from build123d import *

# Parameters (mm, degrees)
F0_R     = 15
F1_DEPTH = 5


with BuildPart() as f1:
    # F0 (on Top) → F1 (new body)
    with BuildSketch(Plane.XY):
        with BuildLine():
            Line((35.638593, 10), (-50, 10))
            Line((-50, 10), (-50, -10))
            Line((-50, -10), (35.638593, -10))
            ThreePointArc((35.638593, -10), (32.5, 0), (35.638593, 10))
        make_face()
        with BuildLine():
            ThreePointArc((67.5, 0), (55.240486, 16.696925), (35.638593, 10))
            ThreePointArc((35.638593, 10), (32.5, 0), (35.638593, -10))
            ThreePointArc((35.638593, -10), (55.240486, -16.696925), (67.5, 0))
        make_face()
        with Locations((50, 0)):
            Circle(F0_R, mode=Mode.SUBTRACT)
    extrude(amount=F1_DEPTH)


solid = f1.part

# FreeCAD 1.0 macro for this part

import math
import FreeCAD as App
import Part
import Sketcher

doc = App.newDocument("Part")
body = doc.addObject("PartDesign::Body", "Body")

sketch1 = doc.addObject("Sketcher::SketchObject", "Sketch")
body.addObject(sketch1)
sketch1.AttachmentSupport = (doc.XY_Plane, [""])
sketch1.MapMode = "FlatFace"
sketch1.addGeometry(Part.LineSegment(App.Vector(36, 10, 0), App.Vector(-50, 10, 0)), False)
sketch1.addGeometry(Part.LineSegment(App.Vector(-50, 10, 0), App.Vector(-50, -10, 0)), False)
sketch1.addGeometry(Part.LineSegment(App.Vector(-50, -10, 0), App.Vector(36, -10, 0)), False)
sketch1.addGeometry(Part.ArcOfCircle(Part.Circle(App.Vector(50, 0, 0), App.Vector(0, 0, 1), 18), math.radians(-145), math.radians(0)), False)
sketch1.addGeometry(Part.ArcOfCircle(Part.Circle(App.Vector(50, 0, 0), App.Vector(0, 0, 1), 18), math.radians(0), math.radians(145)), False)
sketch1.addGeometry(Part.Circle(App.Vector(50, 0, 0), App.Vector(0, 0, 1), 15), False)
sketch1.addConstraint(Sketcher.Constraint("Coincident", 0, 2, 1, 1))
sketch1.addConstraint(Sketcher.Constraint("Coincident", 1, 2, 2, 1))
sketch1.addConstraint(Sketcher.Constraint("Coincident", 2, 2, 3, 1))
sketch1.addConstraint(Sketcher.Constraint("Tangent", 3, 2, 4, 1))
sketch1.addConstraint(Sketcher.Constraint("Coincident", 4, 2, 0, 1))
sketch1.addConstraint(Sketcher.Constraint("Horizontal", 0))
sketch1.addConstraint(Sketcher.Constraint("Vertical", 1))
sketch1.addConstraint(Sketcher.Constraint("Horizontal", 2))
sketch1.addConstraint(Sketcher.Constraint("Coincident", 5, 3, 3, 3))
sketch1.addConstraint(Sketcher.Constraint("Equal", 3, 4))
sketch1.addConstraint(Sketcher.Constraint("Symmetric", 2, 2, 4, 2, -1))
sketch1.addConstraint(Sketcher.Constraint("PointOnObject", 3, 2, -1))
sketch1.addConstraint(Sketcher.Constraint("Diameter", 5, 30.0))
sketch1.addConstraint(Sketcher.Constraint("Radius", 3, 17.5))
sketch1.addConstraint(Sketcher.Constraint("DistanceY", 1, 2, 1, 1, 20.0))
sketch1.addConstraint(Sketcher.Constraint("DistanceX", -1, 1, 3, 3, 50.0))
sketch1.addConstraint(Sketcher.Constraint("DistanceX", 0, 2, -1, 1, 50.0))
pad1 = doc.addObject("PartDesign::Pad", "Pad")
body.addObject(pad1)
pad1.Profile = sketch1
pad1.Length = 5

doc.recompute()
